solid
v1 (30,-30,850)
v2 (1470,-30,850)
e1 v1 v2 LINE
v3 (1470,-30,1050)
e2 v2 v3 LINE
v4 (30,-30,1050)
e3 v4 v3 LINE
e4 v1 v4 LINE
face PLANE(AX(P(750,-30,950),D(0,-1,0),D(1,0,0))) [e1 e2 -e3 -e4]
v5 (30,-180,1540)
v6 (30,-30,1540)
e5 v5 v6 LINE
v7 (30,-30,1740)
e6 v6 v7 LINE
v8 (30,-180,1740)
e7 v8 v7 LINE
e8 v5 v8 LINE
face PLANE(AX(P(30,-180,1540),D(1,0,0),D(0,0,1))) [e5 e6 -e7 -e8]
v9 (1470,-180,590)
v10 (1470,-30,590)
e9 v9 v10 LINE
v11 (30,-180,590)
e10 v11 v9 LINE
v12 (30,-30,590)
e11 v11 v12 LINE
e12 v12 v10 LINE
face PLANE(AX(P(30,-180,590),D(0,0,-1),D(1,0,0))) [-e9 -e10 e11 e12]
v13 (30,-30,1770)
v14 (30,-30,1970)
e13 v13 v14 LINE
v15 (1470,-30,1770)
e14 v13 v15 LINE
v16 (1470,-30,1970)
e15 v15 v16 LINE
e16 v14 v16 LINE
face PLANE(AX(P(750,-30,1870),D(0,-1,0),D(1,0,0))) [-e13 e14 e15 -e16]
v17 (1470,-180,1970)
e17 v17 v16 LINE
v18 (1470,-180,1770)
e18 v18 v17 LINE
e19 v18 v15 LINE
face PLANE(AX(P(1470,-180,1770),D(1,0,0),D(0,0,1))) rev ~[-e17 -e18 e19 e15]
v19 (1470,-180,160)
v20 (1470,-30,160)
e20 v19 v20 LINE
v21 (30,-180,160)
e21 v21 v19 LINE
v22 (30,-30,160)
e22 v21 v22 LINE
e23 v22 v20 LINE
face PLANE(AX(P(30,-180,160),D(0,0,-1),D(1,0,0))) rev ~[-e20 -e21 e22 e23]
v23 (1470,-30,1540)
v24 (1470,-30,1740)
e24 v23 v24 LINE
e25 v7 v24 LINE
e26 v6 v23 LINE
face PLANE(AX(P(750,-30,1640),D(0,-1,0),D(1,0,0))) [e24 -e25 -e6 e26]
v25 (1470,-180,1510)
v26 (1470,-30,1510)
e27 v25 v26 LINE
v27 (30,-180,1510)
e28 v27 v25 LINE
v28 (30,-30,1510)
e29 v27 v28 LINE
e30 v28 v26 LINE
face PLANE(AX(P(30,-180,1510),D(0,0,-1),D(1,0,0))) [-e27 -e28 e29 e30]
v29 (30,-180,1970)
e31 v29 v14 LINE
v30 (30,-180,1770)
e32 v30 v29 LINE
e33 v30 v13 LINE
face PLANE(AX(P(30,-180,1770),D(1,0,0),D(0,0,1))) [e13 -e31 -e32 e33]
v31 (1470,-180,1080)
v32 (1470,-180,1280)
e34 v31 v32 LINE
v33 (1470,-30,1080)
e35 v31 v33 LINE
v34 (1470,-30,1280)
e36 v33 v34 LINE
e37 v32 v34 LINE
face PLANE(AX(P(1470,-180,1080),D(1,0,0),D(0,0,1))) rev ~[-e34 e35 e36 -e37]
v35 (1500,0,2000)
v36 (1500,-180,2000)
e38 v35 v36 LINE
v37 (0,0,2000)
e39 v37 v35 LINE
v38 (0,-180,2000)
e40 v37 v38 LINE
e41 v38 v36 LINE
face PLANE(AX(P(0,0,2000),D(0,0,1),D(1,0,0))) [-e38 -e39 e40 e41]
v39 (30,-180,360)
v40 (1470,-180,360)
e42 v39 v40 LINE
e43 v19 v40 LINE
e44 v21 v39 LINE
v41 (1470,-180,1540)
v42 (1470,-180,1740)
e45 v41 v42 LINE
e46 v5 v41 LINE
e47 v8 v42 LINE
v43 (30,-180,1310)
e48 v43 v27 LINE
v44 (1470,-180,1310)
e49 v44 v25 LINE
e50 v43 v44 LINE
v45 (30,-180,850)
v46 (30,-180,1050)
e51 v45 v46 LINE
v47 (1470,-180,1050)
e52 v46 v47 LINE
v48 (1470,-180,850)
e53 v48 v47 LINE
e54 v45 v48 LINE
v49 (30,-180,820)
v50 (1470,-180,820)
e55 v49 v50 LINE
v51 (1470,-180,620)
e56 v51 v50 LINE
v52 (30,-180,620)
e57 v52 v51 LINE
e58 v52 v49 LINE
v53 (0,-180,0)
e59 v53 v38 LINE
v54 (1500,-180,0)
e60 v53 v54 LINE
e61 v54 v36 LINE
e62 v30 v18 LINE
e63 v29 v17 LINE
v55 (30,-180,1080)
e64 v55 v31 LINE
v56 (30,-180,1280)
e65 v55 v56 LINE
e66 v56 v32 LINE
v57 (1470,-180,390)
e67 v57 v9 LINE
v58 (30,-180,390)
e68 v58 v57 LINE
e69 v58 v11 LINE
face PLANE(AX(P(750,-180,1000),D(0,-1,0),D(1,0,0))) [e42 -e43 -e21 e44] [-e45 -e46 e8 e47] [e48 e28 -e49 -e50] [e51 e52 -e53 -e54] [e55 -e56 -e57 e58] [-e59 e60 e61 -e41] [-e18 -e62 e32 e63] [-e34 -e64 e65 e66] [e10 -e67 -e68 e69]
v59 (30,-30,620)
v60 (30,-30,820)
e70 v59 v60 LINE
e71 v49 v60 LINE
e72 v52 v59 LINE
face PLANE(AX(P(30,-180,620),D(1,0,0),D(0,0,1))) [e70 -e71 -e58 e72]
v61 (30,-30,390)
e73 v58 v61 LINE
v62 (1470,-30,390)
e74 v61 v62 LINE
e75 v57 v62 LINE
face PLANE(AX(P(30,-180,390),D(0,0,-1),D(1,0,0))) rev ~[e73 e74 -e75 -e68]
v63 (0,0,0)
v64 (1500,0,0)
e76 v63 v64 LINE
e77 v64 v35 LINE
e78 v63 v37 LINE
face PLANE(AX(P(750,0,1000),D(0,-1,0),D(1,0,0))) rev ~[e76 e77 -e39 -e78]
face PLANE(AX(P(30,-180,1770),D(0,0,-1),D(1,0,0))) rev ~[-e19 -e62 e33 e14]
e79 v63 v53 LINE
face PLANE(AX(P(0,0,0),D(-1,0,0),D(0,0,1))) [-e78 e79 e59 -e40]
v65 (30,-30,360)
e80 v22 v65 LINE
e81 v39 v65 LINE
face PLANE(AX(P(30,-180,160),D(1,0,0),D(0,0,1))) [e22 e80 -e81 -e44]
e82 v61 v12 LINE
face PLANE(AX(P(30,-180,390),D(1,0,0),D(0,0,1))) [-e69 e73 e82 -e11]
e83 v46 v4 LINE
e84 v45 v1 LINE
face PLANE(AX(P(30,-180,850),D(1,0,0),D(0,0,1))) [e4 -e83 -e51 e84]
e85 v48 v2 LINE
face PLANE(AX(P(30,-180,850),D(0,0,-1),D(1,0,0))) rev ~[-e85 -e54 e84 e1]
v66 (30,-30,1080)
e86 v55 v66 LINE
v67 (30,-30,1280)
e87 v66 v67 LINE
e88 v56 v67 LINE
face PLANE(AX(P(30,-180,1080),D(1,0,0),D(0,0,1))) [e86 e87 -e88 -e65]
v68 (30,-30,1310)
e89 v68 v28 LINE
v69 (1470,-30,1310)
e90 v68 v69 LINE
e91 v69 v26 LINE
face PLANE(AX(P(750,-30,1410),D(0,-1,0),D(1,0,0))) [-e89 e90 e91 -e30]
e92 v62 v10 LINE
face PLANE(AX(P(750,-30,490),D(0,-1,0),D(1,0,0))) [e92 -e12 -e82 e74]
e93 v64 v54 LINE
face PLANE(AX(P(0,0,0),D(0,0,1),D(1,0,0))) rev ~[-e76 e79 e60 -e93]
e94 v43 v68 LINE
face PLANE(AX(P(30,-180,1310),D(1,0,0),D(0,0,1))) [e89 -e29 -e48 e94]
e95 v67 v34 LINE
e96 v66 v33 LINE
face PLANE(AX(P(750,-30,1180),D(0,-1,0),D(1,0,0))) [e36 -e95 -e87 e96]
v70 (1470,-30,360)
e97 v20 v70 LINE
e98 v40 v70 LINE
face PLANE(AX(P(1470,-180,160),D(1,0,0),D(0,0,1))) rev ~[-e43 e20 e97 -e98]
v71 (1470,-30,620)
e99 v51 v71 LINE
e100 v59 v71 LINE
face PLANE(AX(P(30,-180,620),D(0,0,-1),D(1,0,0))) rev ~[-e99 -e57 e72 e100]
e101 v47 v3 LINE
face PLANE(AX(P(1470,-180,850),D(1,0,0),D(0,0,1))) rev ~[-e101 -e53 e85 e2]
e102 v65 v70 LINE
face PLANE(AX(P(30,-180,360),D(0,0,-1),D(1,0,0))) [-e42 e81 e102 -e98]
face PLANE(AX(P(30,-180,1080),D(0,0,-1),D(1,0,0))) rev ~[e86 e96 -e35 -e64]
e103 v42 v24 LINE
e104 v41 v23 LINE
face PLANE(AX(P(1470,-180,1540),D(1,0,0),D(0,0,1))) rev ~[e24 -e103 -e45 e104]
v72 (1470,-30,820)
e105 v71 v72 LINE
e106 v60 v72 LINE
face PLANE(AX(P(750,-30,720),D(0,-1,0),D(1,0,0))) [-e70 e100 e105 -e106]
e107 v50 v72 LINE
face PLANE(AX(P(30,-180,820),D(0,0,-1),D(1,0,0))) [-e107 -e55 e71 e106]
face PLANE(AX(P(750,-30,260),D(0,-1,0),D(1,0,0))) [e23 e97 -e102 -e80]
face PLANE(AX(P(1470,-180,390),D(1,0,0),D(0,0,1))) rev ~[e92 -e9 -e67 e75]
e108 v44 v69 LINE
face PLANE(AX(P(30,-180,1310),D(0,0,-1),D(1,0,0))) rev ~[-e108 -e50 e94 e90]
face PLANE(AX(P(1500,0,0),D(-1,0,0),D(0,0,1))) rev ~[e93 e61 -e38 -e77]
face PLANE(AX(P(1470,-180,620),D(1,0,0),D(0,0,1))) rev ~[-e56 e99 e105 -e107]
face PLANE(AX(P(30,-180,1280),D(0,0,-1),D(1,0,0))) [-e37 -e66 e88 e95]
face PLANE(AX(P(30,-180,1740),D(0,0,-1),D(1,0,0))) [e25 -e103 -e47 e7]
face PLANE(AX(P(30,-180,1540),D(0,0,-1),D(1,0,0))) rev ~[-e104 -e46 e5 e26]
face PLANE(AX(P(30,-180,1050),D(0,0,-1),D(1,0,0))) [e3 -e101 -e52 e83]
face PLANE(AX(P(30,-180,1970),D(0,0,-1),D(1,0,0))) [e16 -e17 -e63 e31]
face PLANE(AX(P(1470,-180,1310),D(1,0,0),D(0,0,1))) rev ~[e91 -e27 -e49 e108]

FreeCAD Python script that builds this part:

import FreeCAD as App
import Part
import Sketcher
from FreeCAD import Vector


def add_polygon(sketch, points):
    """Adds a closed chain of lines whose ends are joined by coincident constraints."""
    first, n = sketch.GeometryCount, len(points)
    for a, b in zip(points, points[1:] + points[:1]):
        sketch.addGeometry(Part.LineSegment(App.Vector(*a, 0), App.Vector(*b, 0)), False)
    for i in range(n):
        sketch.addConstraint(Sketcher.Constraint("Coincident", first + i, 2, first + (i + 1) % n, 1))

doc = App.newDocument("Part")
body = doc.addObject("PartDesign::Body", "Body")

sketch1 = body.newObject("Sketcher::SketchObject", "Sketch")
sketch1.AttachmentSupport = (doc.getObject("XZ_Plane"), [""])
sketch1.MapMode = "FlatFace"
add_polygon(sketch1, [(0, 2000), (0, 0), (1500, 0), (1500, 2000)])
sketch1.addConstraint(Sketcher.Constraint("Vertical", 0))
sketch1.addConstraint(Sketcher.Constraint("Horizontal", 1))
sketch1.addConstraint(Sketcher.Constraint("Vertical", 2))
sketch1.addConstraint(Sketcher.Constraint("Horizontal", 3))
sketch1.addConstraint(Sketcher.Constraint("Coincident", 0, 2, -1, 1))
sketch1.addConstraint(Sketcher.Constraint("DistanceX", 1, 1, 1, 2, 1500.0))
sketch1.addConstraint(Sketcher.Constraint("DistanceY", 0, 2, 0, 1, 2000.0))
pad1 = body.newObject("PartDesign::Pad", "Pad")
pad1.Profile = sketch1
pad1.Length = 180

sketch2 = body.newObject("Sketcher::SketchObject", "Sketch001")
sketch2.AttachmentSupport = (doc.getObject("XZ_Plane"), [""])
sketch2.MapMode = "FlatFace"
sketch2.AttachmentOffset = App.Placement(Vector(0, 0, 180), App.Rotation())
add_polygon(sketch2, [(30, 1970), (30, 1770), (1470, 1770), (1470, 1970)])
add_polygon(sketch2, [(30, 1740), (30, 1540), (1470, 1540), (1470, 1740)])
add_polygon(sketch2, [(30, 1510), (30, 1310), (1470, 1310), (1470, 1510)])
add_polygon(sketch2, [(30, 1280), (30, 1080), (1470, 1080), (1470, 1280)])
add_polygon(sketch2, [(30, 1050), (30, 850), (1470, 850), (1470, 1050)])
add_polygon(sketch2, [(30, 820), (30, 620), (1470, 620), (1470, 820)])
add_polygon(sketch2, [(30, 590), (30, 390), (1470, 390), (1470, 590)])
add_polygon(sketch2, [(30, 360), (30, 160), (1470, 160), (1470, 360)])
sketch2.addConstraint(Sketcher.Constraint("Vertical", 0))
sketch2.addConstraint(Sketcher.Constraint("Horizontal", 1))
sketch2.addConstraint(Sketcher.Constraint("Vertical", 2))
sketch2.addConstraint(Sketcher.Constraint("Horizontal", 3))
sketch2.addConstraint(Sketcher.Constraint("Vertical", 4))
sketch2.addConstraint(Sketcher.Constraint("Horizontal", 5))
sketch2.addConstraint(Sketcher.Constraint("Vertical", 6))
sketch2.addConstraint(Sketcher.Constraint("Horizontal", 7))
sketch2.addConstraint(Sketcher.Constraint("Vertical", 8))
sketch2.addConstraint(Sketcher.Constraint("Horizontal", 9))
sketch2.addConstraint(Sketcher.Constraint("Vertical", 10))
sketch2.addConstraint(Sketcher.Constraint("Horizontal", 11))
sketch2.addConstraint(Sketcher.Constraint("Vertical", 12))
sketch2.addConstraint(Sketcher.Constraint("Horizontal", 13))
sketch2.addConstraint(Sketcher.Constraint("Vertical", 14))
sketch2.addConstraint(Sketcher.Constraint("Horizontal", 15))
sketch2.addConstraint(Sketcher.Constraint("Vertical", 16))
sketch2.addConstraint(Sketcher.Constraint("Horizontal", 17))
sketch2.addConstraint(Sketcher.Constraint("Vertical", 18))
sketch2.addConstraint(Sketcher.Constraint("Horizontal", 19))
sketch2.addConstraint(Sketcher.Constraint("Vertical", 20))
sketch2.addConstraint(Sketcher.Constraint("Horizontal", 21))
sketch2.addConstraint(Sketcher.Constraint("Vertical", 22))
sketch2.addConstraint(Sketcher.Constraint("Horizontal", 23))
sketch2.addConstraint(Sketcher.Constraint("Vertical", 24))
sketch2.addConstraint(Sketcher.Constraint("Horizontal", 25))
sketch2.addConstraint(Sketcher.Constraint("Vertical", 26))
sketch2.addConstraint(Sketcher.Constraint("Horizontal", 27))
sketch2.addConstraint(Sketcher.Constraint("Vertical", 28))
sketch2.addConstraint(Sketcher.Constraint("Horizontal", 29))
sketch2.addConstraint(Sketcher.Constraint("Vertical", 30))
sketch2.addConstraint(Sketcher.Constraint("Horizontal", 31))
sketch2.addConstraint(Sketcher.Constraint("Vertical", 3, 2, 4, 2))
sketch2.addConstraint(Sketcher.Constraint("Vertical", 2, 2, 5, 2))
sketch2.addConstraint(Sketcher.Constraint("Vertical", 7, 2, 8, 2))
sketch2.addConstraint(Sketcher.Constraint("Vertical", 6, 2, 9, 2))
sketch2.addConstraint(Sketcher.Constraint("Vertical", 11, 2, 12, 2))
sketch2.addConstraint(Sketcher.Constraint("Vertical", 10, 2, 13, 2))
sketch2.addConstraint(Sketcher.Constraint("Vertical", 15, 2, 16, 2))
sketch2.addConstraint(Sketcher.Constraint("Vertical", 14, 2, 17, 2))
sketch2.addConstraint(Sketcher.Constraint("Vertical", 19, 2, 20, 2))
sketch2.addConstraint(Sketcher.Constraint("Vertical", 18, 2, 21, 2))
sketch2.addConstraint(Sketcher.Constraint("Vertical", 23, 2, 24, 2))
sketch2.addConstraint(Sketcher.Constraint("Vertical", 22, 2, 25, 2))
sketch2.addConstraint(Sketcher.Constraint("Vertical", 27, 2, 28, 2))
sketch2.addConstraint(Sketcher.Constraint("Vertical", 26, 2, 29, 2))
sketch2.addConstraint(Sketcher.Constraint("Equal", 2, 4))
sketch2.addConstraint(Sketcher.Constraint("Equal", 6, 8))
sketch2.addConstraint(Sketcher.Constraint("Equal", 10, 12))
sketch2.addConstraint(Sketcher.Constraint("Equal", 14, 16))
sketch2.addConstraint(Sketcher.Constraint("Equal", 18, 20))
sketch2.addConstraint(Sketcher.Constraint("Equal", 22, 24))
sketch2.addConstraint(Sketcher.Constraint("Equal", 26, 28))
sketch2.addConstraint(Sketcher.Constraint("DistanceX", 1, 1, 1, 2, 1440.0))
sketch2.addConstraint(Sketcher.Constraint("DistanceY", 0, 2, 0, 1, 200.0))
sketch2.addConstraint(Sketcher.Constraint("DistanceX", -1, 1, 0, 2, 30.0))
sketch2.addConstraint(Sketcher.Constraint("DistanceY", -1, 1, 0, 2, 1770.0))
sketch2.addConstraint(Sketcher.Constraint("DistanceY", -1, 1, 4, 2, 1540.0))
sketch2.addConstraint(Sketcher.Constraint("DistanceY", -1, 1, 8, 2, 1310.0))
sketch2.addConstraint(Sketcher.Constraint("DistanceY", -1, 1, 12, 2, 1080.0))
sketch2.addConstraint(Sketcher.Constraint("DistanceY", -1, 1, 16, 2, 850.0))
sketch2.addConstraint(Sketcher.Constraint("DistanceY", -1, 1, 20, 2, 620.0))
sketch2.addConstraint(Sketcher.Constraint("DistanceY", -1, 1, 24, 2, 390.0))
sketch2.addConstraint(Sketcher.Constraint("DistanceY", -1, 1, 28, 2, 160.0))
pocket1 = body.newObject("PartDesign::Pocket", "Pocket")
pocket1.Profile = sketch2
pocket1.Length = 150

doc.recompute()
